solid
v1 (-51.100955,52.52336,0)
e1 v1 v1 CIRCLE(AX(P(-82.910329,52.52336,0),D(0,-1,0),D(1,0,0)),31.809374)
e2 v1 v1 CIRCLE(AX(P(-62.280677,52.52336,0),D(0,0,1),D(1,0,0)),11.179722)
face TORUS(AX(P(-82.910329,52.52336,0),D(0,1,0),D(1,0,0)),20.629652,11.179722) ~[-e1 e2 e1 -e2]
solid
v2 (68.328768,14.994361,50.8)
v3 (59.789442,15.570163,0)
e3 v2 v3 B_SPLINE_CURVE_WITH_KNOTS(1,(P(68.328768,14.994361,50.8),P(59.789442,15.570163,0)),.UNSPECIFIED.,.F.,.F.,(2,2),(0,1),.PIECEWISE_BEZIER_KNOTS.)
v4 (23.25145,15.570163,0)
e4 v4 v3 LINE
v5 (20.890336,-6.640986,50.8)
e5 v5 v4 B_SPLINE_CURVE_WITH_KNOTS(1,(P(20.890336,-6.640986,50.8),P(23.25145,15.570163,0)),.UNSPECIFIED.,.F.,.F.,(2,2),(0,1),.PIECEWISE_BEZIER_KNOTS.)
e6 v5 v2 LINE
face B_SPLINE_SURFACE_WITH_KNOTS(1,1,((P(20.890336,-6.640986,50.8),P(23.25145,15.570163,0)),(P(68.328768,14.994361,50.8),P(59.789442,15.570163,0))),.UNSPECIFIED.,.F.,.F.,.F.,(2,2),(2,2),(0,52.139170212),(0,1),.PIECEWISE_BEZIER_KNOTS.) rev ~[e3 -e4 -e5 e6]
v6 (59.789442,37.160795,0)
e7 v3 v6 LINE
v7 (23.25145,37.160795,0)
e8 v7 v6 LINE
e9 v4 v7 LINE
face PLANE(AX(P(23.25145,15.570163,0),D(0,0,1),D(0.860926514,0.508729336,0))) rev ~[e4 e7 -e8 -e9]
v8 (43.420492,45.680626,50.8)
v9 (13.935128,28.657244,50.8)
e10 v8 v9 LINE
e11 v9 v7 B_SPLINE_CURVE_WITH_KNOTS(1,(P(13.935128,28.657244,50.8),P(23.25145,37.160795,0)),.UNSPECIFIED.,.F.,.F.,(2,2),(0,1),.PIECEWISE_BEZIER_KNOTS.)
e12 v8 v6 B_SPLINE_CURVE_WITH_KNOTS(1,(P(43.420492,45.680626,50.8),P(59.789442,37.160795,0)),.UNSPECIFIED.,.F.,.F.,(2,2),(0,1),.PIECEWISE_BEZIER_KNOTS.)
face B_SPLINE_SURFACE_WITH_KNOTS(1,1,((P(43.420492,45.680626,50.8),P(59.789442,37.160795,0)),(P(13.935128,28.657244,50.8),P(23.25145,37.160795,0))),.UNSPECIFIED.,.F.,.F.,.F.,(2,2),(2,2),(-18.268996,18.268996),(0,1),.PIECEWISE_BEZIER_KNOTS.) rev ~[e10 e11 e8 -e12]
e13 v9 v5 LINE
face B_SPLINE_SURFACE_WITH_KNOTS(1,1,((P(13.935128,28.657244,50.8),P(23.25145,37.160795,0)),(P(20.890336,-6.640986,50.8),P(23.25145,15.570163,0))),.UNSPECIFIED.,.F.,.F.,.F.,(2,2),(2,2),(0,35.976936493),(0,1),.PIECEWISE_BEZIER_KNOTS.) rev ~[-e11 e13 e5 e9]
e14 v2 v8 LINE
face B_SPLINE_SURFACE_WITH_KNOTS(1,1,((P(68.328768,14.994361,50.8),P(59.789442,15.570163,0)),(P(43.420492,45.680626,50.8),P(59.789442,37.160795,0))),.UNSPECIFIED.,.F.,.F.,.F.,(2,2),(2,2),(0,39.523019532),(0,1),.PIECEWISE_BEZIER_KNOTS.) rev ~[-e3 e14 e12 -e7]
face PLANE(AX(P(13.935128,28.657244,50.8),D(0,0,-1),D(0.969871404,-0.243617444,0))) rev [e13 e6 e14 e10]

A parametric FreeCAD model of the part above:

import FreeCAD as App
import Part
import Sketcher
from FreeCAD import Vector
Q = App.Units.Quantity


def add_polygon(sketch, points):
    """Adds a closed chain of lines whose ends are joined by coincident constraints."""
    first, n = sketch.GeometryCount, len(points)
    for a, b in zip(points, points[1:] + points[:1]):
        sketch.addGeometry(Part.LineSegment(App.Vector(*a, 0), App.Vector(*b, 0)), False)
    for i in range(n):
        sketch.addConstraint(Sketcher.Constraint("Coincident", first + i, 2, first + (i + 1) % n, 1))

doc = App.newDocument("Part")
body = doc.addObject("PartDesign::Body", "Body")

sketch1 = body.newObject("Sketcher::SketchObject", "Sketch")
sketch1.AttachmentSupport = (doc.getObject("XY_Plane"), [""])
sketch1.MapMode = "FlatFace"
sketch1.AttachmentOffset = App.Placement(Vector(0, 0, 50.8), App.Rotation())
add_polygon(sketch1, [(13.935128, 28.657244), (20.890336, -6.640986), (68.328768, 14.994361), (43.420492, 45.680626)])
sketch1.addConstraint(Sketcher.Constraint("Angle", 3, Q("-150.000001 deg")))
sketch1.addConstraint(Sketcher.Constraint("Distance", 1, 52.13917))
sketch1.addConstraint(Sketcher.Constraint("Distance", 2, 39.52302))
sketch1.addConstraint(Sketcher.Constraint("DistanceY", -1, 1, 1, 2, 14.994361))
sketch1.addConstraint(Sketcher.Constraint("DistanceX", -1, 1, 3, 2, 13.935128))
sketch1.addConstraint(Sketcher.Constraint("DistanceX", 0, 2, 1, 2, 47.438432))
sketch1.addConstraint(Sketcher.Constraint("DistanceY", 0, 2, 2, 2, 52.321612))
sketch1.addConstraint(Sketcher.Constraint("DistanceY", 3, 2, 2, 2, 17.023382))

sketch2 = body.newObject("Sketcher::SketchObject", "Sketch001")
sketch2.AttachmentSupport = (doc.getObject("XY_Plane"), [""])
sketch2.MapMode = "FlatFace"
add_polygon(sketch2, [(23.25145, 37.160795), (23.25145, 15.570163), (59.789442, 15.570163), (59.789442, 37.160795)])
sketch2.addConstraint(Sketcher.Constraint("Vertical", 0))
sketch2.addConstraint(Sketcher.Constraint("Horizontal", 1))
sketch2.addConstraint(Sketcher.Constraint("Vertical", 2))
sketch2.addConstraint(Sketcher.Constraint("Horizontal", 3))
sketch2.addConstraint(Sketcher.Constraint("DistanceX", 1, 1, 1, 2, 36.537992))
sketch2.addConstraint(Sketcher.Constraint("DistanceY", 0, 2, 0, 1, 21.590633))
sketch2.addConstraint(Sketcher.Constraint("DistanceX", -1, 1, 0, 2, 23.25145))
sketch2.addConstraint(Sketcher.Constraint("DistanceY", -1, 1, 0, 2, 15.570163))

additiveloft = body.newObject("PartDesign::AdditiveLoft", "AdditiveLoft")
additiveloft.Profile = sketch1
additiveloft.Sections = [sketch2]
body2 = doc.addObject("PartDesign::Body", "Body001")

sketch3 = body2.newObject("Sketcher::SketchObject", "Sketch002")
sketch3.AttachmentSupport = (doc.getObject("XY_Plane001"), [""])
sketch3.MapMode = "FlatFace"
sketch3.addGeometry(Part.Circle(Vector(-62.280677, 52.52336, 0), Vector(0, 0, 1), 11.179722), False)
sketch3.addGeometry(Part.LineSegment(Vector(-82.910329, 52.52336, 0), Vector(-82.910329, 42.52336, 0)), True)
sketch3.addConstraint(Sketcher.Constraint("Vertical", 1))
sketch3.addConstraint(Sketcher.Constraint("Horizontal", 0, 3, 1, 1))
sketch3.addConstraint(Sketcher.Constraint("DistanceY", 1, 2, 1, 1, 10.0))
sketch3.addConstraint(Sketcher.Constraint("Diameter", 0, 22.359444))
sketch3.addConstraint(Sketcher.Constraint("DistanceY", -1, 1, 0, 3, 52.52336))
sketch3.addConstraint(Sketcher.Constraint("DistanceX", 1, 1, -1, 1, 82.910329))
sketch3.addConstraint(Sketcher.Constraint("DistanceX", 0, 3, -1, 1, 62.280677))
revolution = body2.newObject("PartDesign::Revolution", "Revolution")
revolution.Profile = sketch3
revolution.ReferenceAxis = (sketch3, ["Axis0"])
revolution.Angle = 360

doc.recompute()
